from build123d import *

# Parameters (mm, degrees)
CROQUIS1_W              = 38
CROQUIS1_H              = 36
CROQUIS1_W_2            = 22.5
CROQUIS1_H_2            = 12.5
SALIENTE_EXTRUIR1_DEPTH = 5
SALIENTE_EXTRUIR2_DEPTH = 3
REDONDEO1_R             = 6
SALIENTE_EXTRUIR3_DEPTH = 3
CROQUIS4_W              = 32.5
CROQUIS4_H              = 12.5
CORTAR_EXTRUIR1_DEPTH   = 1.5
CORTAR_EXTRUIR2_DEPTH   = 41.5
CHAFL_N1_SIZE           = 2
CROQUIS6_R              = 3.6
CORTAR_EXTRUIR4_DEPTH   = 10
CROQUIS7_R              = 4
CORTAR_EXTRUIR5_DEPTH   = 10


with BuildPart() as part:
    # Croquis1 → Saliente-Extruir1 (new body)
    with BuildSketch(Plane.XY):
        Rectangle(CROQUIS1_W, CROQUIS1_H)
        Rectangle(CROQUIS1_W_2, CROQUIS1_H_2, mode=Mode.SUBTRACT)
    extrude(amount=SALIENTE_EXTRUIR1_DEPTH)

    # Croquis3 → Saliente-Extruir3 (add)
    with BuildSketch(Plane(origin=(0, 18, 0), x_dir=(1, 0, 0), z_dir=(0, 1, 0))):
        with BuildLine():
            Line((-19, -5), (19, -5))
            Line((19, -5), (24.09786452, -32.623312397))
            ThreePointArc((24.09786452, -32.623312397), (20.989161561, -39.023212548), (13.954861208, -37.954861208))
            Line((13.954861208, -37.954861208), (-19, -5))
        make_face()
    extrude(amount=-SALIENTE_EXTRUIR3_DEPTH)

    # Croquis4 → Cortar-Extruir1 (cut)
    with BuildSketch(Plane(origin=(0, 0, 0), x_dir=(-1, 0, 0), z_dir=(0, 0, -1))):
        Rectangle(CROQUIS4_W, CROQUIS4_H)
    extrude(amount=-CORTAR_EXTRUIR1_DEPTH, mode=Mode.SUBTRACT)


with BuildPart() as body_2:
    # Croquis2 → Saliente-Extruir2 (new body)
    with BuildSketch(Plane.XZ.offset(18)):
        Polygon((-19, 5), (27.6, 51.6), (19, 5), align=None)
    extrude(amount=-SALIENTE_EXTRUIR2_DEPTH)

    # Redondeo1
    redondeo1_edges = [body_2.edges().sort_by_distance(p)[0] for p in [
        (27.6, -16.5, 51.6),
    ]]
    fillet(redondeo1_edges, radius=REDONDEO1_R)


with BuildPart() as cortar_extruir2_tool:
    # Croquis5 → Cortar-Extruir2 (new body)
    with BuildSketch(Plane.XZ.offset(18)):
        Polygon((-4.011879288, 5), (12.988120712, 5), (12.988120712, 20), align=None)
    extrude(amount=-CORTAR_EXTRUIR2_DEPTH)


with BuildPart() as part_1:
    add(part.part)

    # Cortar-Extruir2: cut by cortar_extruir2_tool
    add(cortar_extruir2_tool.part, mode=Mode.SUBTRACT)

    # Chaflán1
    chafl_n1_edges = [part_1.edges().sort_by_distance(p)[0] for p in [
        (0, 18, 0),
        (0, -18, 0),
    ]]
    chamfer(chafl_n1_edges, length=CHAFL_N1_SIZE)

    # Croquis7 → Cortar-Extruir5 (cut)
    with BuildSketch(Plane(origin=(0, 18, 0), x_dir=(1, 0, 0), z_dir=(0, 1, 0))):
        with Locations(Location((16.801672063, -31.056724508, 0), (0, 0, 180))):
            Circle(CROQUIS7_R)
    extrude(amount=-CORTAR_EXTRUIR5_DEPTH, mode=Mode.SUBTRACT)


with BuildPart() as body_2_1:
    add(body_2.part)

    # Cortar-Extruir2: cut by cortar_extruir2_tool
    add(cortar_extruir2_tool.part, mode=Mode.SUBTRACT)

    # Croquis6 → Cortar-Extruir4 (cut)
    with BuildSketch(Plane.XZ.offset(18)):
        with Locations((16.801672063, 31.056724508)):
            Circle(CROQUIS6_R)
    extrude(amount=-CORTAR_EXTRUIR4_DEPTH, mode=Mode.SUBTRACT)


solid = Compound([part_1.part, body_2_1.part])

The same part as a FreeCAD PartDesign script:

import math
import FreeCAD as App
import Part
import Sketcher
from FreeCAD import Vector
Q = App.Units.Quantity


def edges_at(feature, points):
    """Names of the edges that pass closest to the given points."""
    edges = feature.Shape.Edges
    near = lambda p: min(range(len(edges)), key=lambda i: edges[i].distToShape(Part.Vertex(*p))[0])
    return sorted({f"Edge{near(p) + 1}" for p in points})


def add_polygon(sketch, points):
    """Adds a closed chain of lines whose ends are joined by coincident constraints."""
    first, n = sketch.GeometryCount, len(points)
    for a, b in zip(points, points[1:] + points[:1]):
        sketch.addGeometry(Part.LineSegment(App.Vector(*a, 0), App.Vector(*b, 0)), False)
    for i in range(n):
        sketch.addConstraint(Sketcher.Constraint("Coincident", first + i, 2, first + (i + 1) % n, 1))

doc = App.newDocument("Part")
body = doc.addObject("PartDesign::Body", "Body")

# Sketch on XY plane
sketch1 = doc.addObject("Sketcher::SketchObject", "Sketch")
body.addObject(sketch1)
sketch1.AttachmentSupport = (doc.XY_Plane, [""])
sketch1.MapMode = "FlatFace"
add_polygon(sketch1, [(-19, 18), (-19, -18), (19, -18), (19, 18)])  # lines 0-3
add_polygon(sketch1, [(11.25, -6.25), (-11.25, -6.25), (-11.25, 6.25), (11.25, 6.25)])  # lines 4-7
sketch1.addConstraint([
    Sketcher.Constraint("Vertical", 0),
    Sketcher.Constraint("Horizontal", 1),
    Sketcher.Constraint("Vertical", 2),
    Sketcher.Constraint("Horizontal", 3),
    Sketcher.Constraint("Horizontal", 4),
    Sketcher.Constraint("Vertical", 5),
    Sketcher.Constraint("Horizontal", 6),
    Sketcher.Constraint("Vertical", 7),
    Sketcher.Constraint("Symmetric", 0, 2, 2, 2, -1, 1),
    Sketcher.Constraint("Symmetric", 4, 2, 6, 2, -1, 1),
    Sketcher.Constraint("DistanceX", 1, 1, 1, 2, 38.0),
    Sketcher.Constraint("DistanceY", 0, 2, 0, 1, 36.0),
    Sketcher.Constraint("DistanceX", 4, 2, 4, 1, 22.5),
    Sketcher.Constraint("DistanceY", 5, 1, 5, 2, 12.5),
])
pad1 = doc.addObject("PartDesign::Pad", "Pad")
body.addObject(pad1)
pad1.Profile = sketch1
pad1.Length = 5

# Sketch on XZ plane
sketch2 = doc.addObject("Sketcher::SketchObject", "Sketch001")
body.addObject(sketch2)
sketch2.AttachmentSupport = (doc.XZ_Plane, [""])
sketch2.MapMode = "FlatFace"
sketch2.AttachmentOffset = App.Placement(Vector(0, 0, -18), App.Rotation())
sketch2.addGeometry([
    Part.LineSegment(Vector(19, 5, 0), Vector(-19, 5, 0)),
    Part.LineSegment(Vector(-19, 5, 0), Vector(13.954861, 37.954861, 0)),
    Part.ArcOfCircle(Part.Circle(Vector(18.197502, 33.712221, 0), Vector(0, 0, 1), 6), math.radians(-10.456251), math.radians(135)),
    Part.LineSegment(Vector(24.097865, 32.623312, 0), Vector(19, 5, 0)),
], False)
sketch2.addConstraint([
    Sketcher.Constraint("Coincident", 0, 2, 1, 1),
    Sketcher.Constraint("Tangent", 1, 2, 2, 2),
    Sketcher.Constraint("Tangent", 2, 1, 3, 1),
    Sketcher.Constraint("Coincident", 3, 2, 0, 1),
    Sketcher.Constraint("Horizontal", 0),
    Sketcher.Constraint("Radius", 2, 6.0),
    Sketcher.Constraint("DistanceX", 0, 2, 0, 1, 38.0),
    Sketcher.Constraint("Angle", 1, Q("45 deg")),
    Sketcher.Constraint("DistanceX", 0, 2, -1, 1, 19.0),
    Sketcher.Constraint("DistanceY", -1, 1, 0, 2, 5.0),
    Sketcher.Constraint("DistanceX", -1, 1, 2, 3, 18.197502),
])
pad2 = doc.addObject("PartDesign::Pad", "Pad001")
body.addObject(pad2)
pad2.Profile = sketch2
pad2.Length = 3

# Sketch on XY plane
sketch3 = doc.addObject("Sketcher::SketchObject", "Sketch002")
body.addObject(sketch3)
sketch3.AttachmentSupport = (doc.XY_Plane, [""])
sketch3.MapMode = "FlatFace"
add_polygon(sketch3, [(16.25, 6.25), (16.25, -6.25), (-16.25, -6.25), (-16.25, 6.25)])  # lines 0-3
sketch3.addConstraint([
    Sketcher.Constraint("Vertical", 0),
    Sketcher.Constraint("Horizontal", 1),
    Sketcher.Constraint("Vertical", 2),
    Sketcher.Constraint("Horizontal", 3),
    Sketcher.Constraint("Symmetric", 0, 2, 2, 2, -1, 1),
    Sketcher.Constraint("DistanceX", 1, 2, 1, 1, 32.5),
    Sketcher.Constraint("DistanceY", 0, 2, 0, 1, 12.5),
])
pocket1 = doc.addObject("PartDesign::Pocket", "Pocket")
body.addObject(pocket1)
pocket1.Profile = sketch3
pocket1.Length = 1.5
pocket1.Reversed = True
body2 = doc.addObject("PartDesign::Body", "Body001")

# Sketch on XZ plane
sketch4 = doc.addObject("Sketcher::SketchObject", "Sketch003")
body2.addObject(sketch4)
sketch4.AttachmentSupport = (doc.getObject("XZ_Plane001"), [""])
sketch4.MapMode = "FlatFace"
sketch4.AttachmentOffset = App.Placement(Vector(0, 0, 18), App.Rotation())
add_polygon(sketch4, [(27.6, 51.6), (-19, 5), (19, 5)])  # lines 0-2
sketch4.addConstraint([
    Sketcher.Constraint("Horizontal", 1),
    Sketcher.Constraint("DistanceX", 1, 1, 1, 2, 38.0),
    Sketcher.Constraint("Angle", 0, Q("-135 deg")),
    Sketcher.Constraint("DistanceX", 0, 2, -1, 1, 19.0),
    Sketcher.Constraint("DistanceY", -1, 1, 0, 2, 5.0),
    Sketcher.Constraint("DistanceX", -1, 1, 2, 2, 27.6),
])
pad3 = doc.addObject("PartDesign::Pad", "Pad002")
body2.addObject(pad3)
pad3.Profile = sketch4
pad3.Length = 3
pad3.Reversed = True
doc.recompute()

fillet = doc.addObject("PartDesign::Fillet", "Fillet")
body2.addObject(fillet)
fillet.Base = (pad3, edges_at(pad3, [(27.6, -16.5, 51.6)]))
fillet.Radius = 6
body3 = doc.addObject("PartDesign::Body", "Body002")

# Sketch on XZ plane
sketch5 = doc.addObject("Sketcher::SketchObject", "Sketch004")
body3.addObject(sketch5)
sketch5.AttachmentSupport = (doc.getObject("XZ_Plane002"), [""])
sketch5.MapMode = "FlatFace"
sketch5.AttachmentOffset = App.Placement(Vector(0, 0, 18), App.Rotation())
add_polygon(sketch5, [(-4.011879, 5), (12.988121, 5), (12.988121, 20)])  # lines 0-2
sketch5.addConstraint([
    Sketcher.Constraint("Horizontal", 0),
    Sketcher.Constraint("Vertical", 1),
    Sketcher.Constraint("DistanceX", 0, 1, 0, 2, 17.0),
    Sketcher.Constraint("DistanceY", 1, 1, 1, 2, 15.0),
    Sketcher.Constraint("DistanceY", -1, 1, 0, 2, 5.0),
    Sketcher.Constraint("DistanceX", -1, 1, 0, 2, 12.988121),
])
pad4 = doc.addObject("PartDesign::Pad", "Pad003")
body3.addObject(pad4)
pad4.Profile = sketch5
pad4.Length = 41.5
pad4.Reversed = True
doc.recompute()

body4 = doc.addObject("PartDesign::Body", "Body003")
body4.BaseFeature = body3
boolean = doc.addObject("PartDesign::Boolean", "Boolean")
body.addObject(boolean)
boolean.Type = "Cut"
boolean.addObjects([body4])
doc.recompute()

chamfer = doc.addObject("PartDesign::Chamfer", "Chamfer")
body.addObject(chamfer)
chamfer.Base = (boolean, edges_at(boolean, [(0, 18, 0), (0, -18, 0)]))
chamfer.Size = 2

# Sketch on XZ plane
sketch6 = doc.addObject("Sketcher::SketchObject", "Sketch005")
body.addObject(sketch6)
sketch6.AttachmentSupport = (doc.XZ_Plane, [""])
sketch6.MapMode = "FlatFace"
sketch6.AttachmentOffset = App.Placement(Vector(0, 0, -18), App.Rotation())
sketch6.addGeometry(Part.Circle(Vector(16.801672, 31.056725, 0), Vector(0, 0, 1), 4), False)
sketch6.addConstraint([
    Sketcher.Constraint("Diameter", 0, 8.0),
    Sketcher.Constraint("DistanceX", -1, 1, 0, 3, 16.801672),
    Sketcher.Constraint("DistanceY", -1, 1, 0, 3, 31.056725),
])
pocket2 = doc.addObject("PartDesign::Pocket", "Pocket001")
body.addObject(pocket2)
pocket2.Profile = sketch6
pocket2.Length = 10
pocket2.Reversed = True
doc.recompute()

boolean2 = doc.addObject("PartDesign::Boolean", "Boolean001")
body2.addObject(boolean2)
boolean2.Type = "Cut"
boolean2.addObjects([body3])

# Sketch on XZ plane
sketch7 = doc.addObject("Sketcher::SketchObject", "Sketch006")
body2.addObject(sketch7)
sketch7.AttachmentSupport = (doc.getObject("XZ_Plane001"), [""])
sketch7.MapMode = "FlatFace"
sketch7.AttachmentOffset = App.Placement(Vector(0, 0, 18), App.Rotation())
sketch7.addGeometry(Part.Circle(Vector(16.801672, 31.056725, 0), Vector(0, 0, 1), 3.6), False)
sketch7.addConstraint([
    Sketcher.Constraint("Diameter", 0, 7.2),
    Sketcher.Constraint("DistanceX", -1, 1, 0, 3, 16.801672),
    Sketcher.Constraint("DistanceY", -1, 1, 0, 3, 31.056725),
])
pocket3 = doc.addObject("PartDesign::Pocket", "Pocket002")
body2.addObject(pocket3)
pocket3.Profile = sketch7
pocket3.Length = 10

doc.recompute()
